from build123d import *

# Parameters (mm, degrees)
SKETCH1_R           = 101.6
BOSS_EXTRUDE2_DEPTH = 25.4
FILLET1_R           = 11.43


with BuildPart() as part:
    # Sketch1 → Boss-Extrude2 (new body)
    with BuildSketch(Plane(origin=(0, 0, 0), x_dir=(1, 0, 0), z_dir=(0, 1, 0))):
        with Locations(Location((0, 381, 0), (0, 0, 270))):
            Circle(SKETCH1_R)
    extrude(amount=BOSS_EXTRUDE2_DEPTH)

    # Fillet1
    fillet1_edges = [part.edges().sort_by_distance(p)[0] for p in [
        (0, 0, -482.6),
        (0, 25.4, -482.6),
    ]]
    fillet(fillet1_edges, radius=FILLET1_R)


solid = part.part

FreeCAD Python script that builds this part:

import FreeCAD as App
import Part
import Sketcher
Q = App.Units.Quantity


def edges_at(feature, points):
    """Names of the edges that pass closest to the given points."""
    edges = feature.Shape.Edges
    near = lambda p: min(range(len(edges)), key=lambda i: edges[i].distToShape(Part.Vertex(*p))[0])
    return sorted({f"Edge{near(p) + 1}" for p in points})

doc = App.newDocument("Part")
body = doc.addObject("PartDesign::Body", "Body")

# Sketch on XZ plane
sketch1 = body.newObject("Sketcher::SketchObject", "Sketch")
sketch1.AttachmentSupport = (doc.getObject("XZ_Plane"), [""])
sketch1.MapMode = "FlatFace"
sketch1.addGeometry(Part.Circle(App.Vector(0, -381, 0), App.Vector(0, 0, 1), 102), False)
sketch1.addConstraint([
    Sketcher.Constraint("PointOnObject", 0, 3, -2),
    Sketcher.Constraint("Diameter", 0, Q("8 in")),
    Sketcher.Constraint("DistanceY", 0, 3, -1, 1, Q("15 in")),
])
pad1 = body.newObject("PartDesign::Pad", "Pad")
pad1.Profile = sketch1
pad1.Length = Q("1 in")
pad1.Reversed = True
doc.recompute()

fillet = body.newObject("PartDesign::Fillet", "Fillet")
fillet.Base = (pad1, edges_at(pad1, [(0, 0, -482.6), (0, 25.4, -482.6)]))
fillet.Radius = Q("0.45 in")

doc.recompute()
